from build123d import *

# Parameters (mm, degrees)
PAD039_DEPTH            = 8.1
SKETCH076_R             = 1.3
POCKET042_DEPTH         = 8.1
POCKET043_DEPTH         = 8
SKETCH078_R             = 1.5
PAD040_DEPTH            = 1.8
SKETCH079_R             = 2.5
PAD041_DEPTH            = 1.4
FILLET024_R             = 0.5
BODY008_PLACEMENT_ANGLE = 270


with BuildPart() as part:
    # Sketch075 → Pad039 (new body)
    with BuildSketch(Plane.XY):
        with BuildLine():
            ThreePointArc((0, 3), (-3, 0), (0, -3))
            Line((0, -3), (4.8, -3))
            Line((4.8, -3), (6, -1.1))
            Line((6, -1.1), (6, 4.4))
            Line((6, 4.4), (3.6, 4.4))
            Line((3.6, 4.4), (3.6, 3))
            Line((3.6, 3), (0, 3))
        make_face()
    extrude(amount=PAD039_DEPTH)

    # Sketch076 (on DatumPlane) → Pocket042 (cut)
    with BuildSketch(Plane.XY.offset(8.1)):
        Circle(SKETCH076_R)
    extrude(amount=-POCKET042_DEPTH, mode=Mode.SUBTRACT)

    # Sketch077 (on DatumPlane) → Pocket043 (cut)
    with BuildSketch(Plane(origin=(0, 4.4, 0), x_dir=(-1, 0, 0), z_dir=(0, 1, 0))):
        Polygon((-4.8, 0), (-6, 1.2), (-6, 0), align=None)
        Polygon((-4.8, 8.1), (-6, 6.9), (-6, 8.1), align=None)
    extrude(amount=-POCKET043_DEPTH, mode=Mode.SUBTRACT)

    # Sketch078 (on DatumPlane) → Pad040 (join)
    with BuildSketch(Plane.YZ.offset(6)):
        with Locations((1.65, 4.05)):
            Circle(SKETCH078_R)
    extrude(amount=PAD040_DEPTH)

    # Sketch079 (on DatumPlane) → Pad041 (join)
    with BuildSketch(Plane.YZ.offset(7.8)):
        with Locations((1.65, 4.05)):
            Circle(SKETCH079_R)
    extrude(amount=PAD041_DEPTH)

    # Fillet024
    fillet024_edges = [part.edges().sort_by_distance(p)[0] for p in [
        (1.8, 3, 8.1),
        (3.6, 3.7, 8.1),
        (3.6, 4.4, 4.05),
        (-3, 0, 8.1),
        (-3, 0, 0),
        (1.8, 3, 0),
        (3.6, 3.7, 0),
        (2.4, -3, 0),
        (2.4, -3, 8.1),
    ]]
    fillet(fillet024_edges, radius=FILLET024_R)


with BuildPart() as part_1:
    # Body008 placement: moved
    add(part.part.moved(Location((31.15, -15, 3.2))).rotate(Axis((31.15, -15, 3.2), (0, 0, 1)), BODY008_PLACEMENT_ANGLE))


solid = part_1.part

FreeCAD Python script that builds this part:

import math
import FreeCAD as App
import Part
import Sketcher

V = App.Vector
Q = App.Units.Quantity


def edges_at(feature, points):
    """Names of the edges that pass closest to the given points."""
    edges = feature.Shape.Edges
    near = lambda p: min(range(len(edges)), key=lambda i: edges[i].distToShape(Part.Vertex(*p))[0])
    return sorted({f"Edge{near(p) + 1}" for p in points})


def add_polygon(sketch, points):
    """Adds a closed chain of lines whose ends are joined by coincident constraints."""
    first, n = sketch.GeometryCount, len(points)
    for a, b in zip(points, points[1:] + points[:1]):
        sketch.addGeometry(Part.LineSegment(App.Vector(*a, 0), App.Vector(*b, 0)), False)
    for i in range(n):
        sketch.addConstraint(Sketcher.Constraint("Coincident", first + i, 2, first + (i + 1) % n, 1))

doc = App.newDocument("Part")
params = doc.addObject("Spreadsheet::Sheet", "Params")
for row, (alias, value) in enumerate([
    ("sketch1_radius", "3 mm"),
    ("sketch1_width", "4.8 mm"),
    ("sketch1_width2", "2.4 mm"),
    ("sketch1_width3", "3.6 mm"),
    ("sketch1_height", "5.5 mm"),
    ("pad1_length", "8.1 mm"),
    ("sketch2_diameter", "2.6 mm"),
    ("pocket1_length", "8.1 mm"),
    ("sketch3_width", "1.2 mm"),
    ("pocket2_length", "8 mm"),
    ("sketch4_diameter", "3 mm"),
    ("pad2_length", "1.8 mm"),
    ("sketch5_diameter", "5 mm"),
    ("pad3_length", "1.4 mm"),
    ("fillet_radius", "0.5 mm"),
], start=1):
    params.set(f"A{row}", alias)
    params.set(f"B{row}", "=" + value)
    params.setAlias(f"B{row}", alias)

body = doc.addObject("PartDesign::Body", "Body")

# Sketch on XY plane
sketch1 = body.newObject("Sketcher::SketchObject", "Sketch")
sketch1.AttachmentSupport = (doc.getObject("XY_Plane"), [""])
sketch1.MapMode = "FlatFace"
sketch1.addGeometry(Part.ArcOfCircle(Part.Circle(V(0, 0, 0), V(0, 0, 1), 3), math.radians(90), math.radians(270)), False)
sketch1.addGeometry(Part.LineSegment(V(0, -3, 0), V(4.8, -3, 0)), False)
sketch1.addGeometry(Part.LineSegment(V(4.8, -3, 0), V(6, -1.1, 0)), False)
sketch1.addGeometry(Part.LineSegment(V(6, -1.1, 0), V(6, 4.4, 0)), False)
sketch1.addGeometry(Part.LineSegment(V(6, 4.4, 0), V(3.6, 4.4, 0)), False)
sketch1.addGeometry(Part.LineSegment(V(3.6, 4.4, 0), V(3.6, 3, 0)), False)
sketch1.addGeometry(Part.LineSegment(V(3.6, 3, 0), V(0, 3, 0)), False)
sketch1.addConstraint(Sketcher.Constraint("Tangent", 0, 2, 1, 1))
sketch1.addConstraint(Sketcher.Constraint("Coincident", 1, 2, 2, 1))
sketch1.addConstraint(Sketcher.Constraint("Coincident", 2, 2, 3, 1))
sketch1.addConstraint(Sketcher.Constraint("Coincident", 3, 2, 4, 1))
sketch1.addConstraint(Sketcher.Constraint("Coincident", 4, 2, 5, 1))
sketch1.addConstraint(Sketcher.Constraint("Coincident", 5, 2, 6, 1))
sketch1.addConstraint(Sketcher.Constraint("Tangent", 6, 2, 0, 1))
sketch1.addConstraint(Sketcher.Constraint("Horizontal", 1))
sketch1.addConstraint(Sketcher.Constraint("Vertical", 3))
sketch1.addConstraint(Sketcher.Constraint("Horizontal", 4))
sketch1.addConstraint(Sketcher.Constraint("Vertical", 5))
sketch1.addConstraint(Sketcher.Constraint("Horizontal", 6))
sketch1.addConstraint(Sketcher.Constraint("Coincident", 0, 3, -1, 1))
sketch1.addConstraint(Sketcher.Constraint("Radius", 0, Q("3 mm")))
sketch1.addConstraint(Sketcher.Constraint("DistanceX", 1, 1, 1, 2, Q("4.8 mm")))
sketch1.addConstraint(Sketcher.Constraint("DistanceX", 4, 2, 4, 1, Q("2.4 mm")))
sketch1.addConstraint(Sketcher.Constraint("DistanceX", 6, 2, 6, 1, Q("3.6 mm")))
sketch1.addConstraint(Sketcher.Constraint("DistanceY", 3, 1, 3, 2, Q("5.5 mm")))
sketch1.addConstraint(Sketcher.Constraint("DistanceY", 5, 2, 5, 1, Q("1.4 mm")))
sketch1.setExpression("Constraints[13]", "Params.sketch1_radius")
sketch1.setExpression("Constraints[14]", "Params.sketch1_width")
sketch1.setExpression("Constraints[15]", "Params.sketch1_width2")
sketch1.setExpression("Constraints[16]", "Params.sketch1_width3")
sketch1.setExpression("Constraints[17]", "Params.sketch1_height")
pad1 = body.newObject("PartDesign::Pad", "Pad")
pad1.Profile = sketch1
pad1.setExpression("Length", "Params.pad1_length")

# Sketch on XY plane
sketch2 = body.newObject("Sketcher::SketchObject", "Sketch001")
sketch2.AttachmentSupport = (doc.getObject("XY_Plane"), [""])
sketch2.MapMode = "FlatFace"
sketch2.AttachmentOffset = App.Placement(V(0, 0, 8.1), App.Rotation())
sketch2.addGeometry(Part.Circle(V(0, 0, 0), V(0, 0, 1), 1.3), False)
sketch2.addConstraint(Sketcher.Constraint("Coincident", 0, 3, -1, 1))
sketch2.addConstraint(Sketcher.Constraint("Diameter", 0, Q("2.6 mm")))
sketch2.setExpression("Constraints[1]", "Params.sketch2_diameter")
pocket1 = body.newObject("PartDesign::Pocket", "Pocket")
pocket1.Profile = sketch2
pocket1.setExpression("Length", "Params.pocket1_length")

# Sketch on XZ plane
sketch3 = body.newObject("Sketcher::SketchObject", "Sketch002")
sketch3.AttachmentSupport = (doc.getObject("XZ_Plane"), [""])
sketch3.MapMode = "FlatFace"
sketch3.AttachmentOffset = App.Placement(V(0, 0, -4.4), App.Rotation())
add_polygon(sketch3, [(4.8, 0), (6, 1.2), (6, 0)])  # lines 0-2
add_polygon(sketch3, [(6, 6.9), (4.8, 8.1), (6, 8.1)])  # lines 3-5
sketch3.addConstraint(Sketcher.Constraint("Vertical", 1))
sketch3.addConstraint(Sketcher.Constraint("Horizontal", 2))
sketch3.addConstraint(Sketcher.Constraint("Horizontal", 4))
sketch3.addConstraint(Sketcher.Constraint("Vertical", 5))
sketch3.addConstraint(Sketcher.Constraint("PointOnObject", 1, 2, -1))
sketch3.addConstraint(Sketcher.Constraint("Perpendicular", 0, 3))
sketch3.addConstraint(Sketcher.Constraint("Vertical", 2, 2, 3, 2))
sketch3.addConstraint(Sketcher.Constraint("Vertical", 1, 2, 4, 2))
sketch3.addConstraint(Sketcher.Constraint("Equal", 4, 1))
sketch3.addConstraint(Sketcher.Constraint("DistanceX", 2, 2, 2, 1, Q("1.2 mm")))
sketch3.addConstraint(Sketcher.Constraint("DistanceX", -1, 1, 0, 2, Q("6 mm")))
sketch3.addConstraint(Sketcher.Constraint("DistanceY", -1, 1, 3, 2, Q("8.1 mm")))
sketch3.setExpression("Constraints[15]", "Params.sketch3_width")
pocket2 = body.newObject("PartDesign::Pocket", "Pocket001")
pocket2.Profile = sketch3
pocket2.setExpression("Length", "Params.pocket2_length")
pocket2.Reversed = True

# Sketch on YZ plane
sketch4 = body.newObject("Sketcher::SketchObject", "Sketch003")
sketch4.AttachmentSupport = (doc.getObject("YZ_Plane"), [""])
sketch4.MapMode = "FlatFace"
sketch4.AttachmentOffset = App.Placement(V(0, 0, 6), App.Rotation())
sketch4.addGeometry(Part.Circle(V(1.6, 4, 0), V(0, 0, 1), 1.5), False)
sketch4.addConstraint(Sketcher.Constraint("Diameter", 0, Q("3 mm")))
sketch4.addConstraint(Sketcher.Constraint("DistanceX", -1, 1, 0, 3, Q("1.65 mm")))
sketch4.addConstraint(Sketcher.Constraint("DistanceY", -1, 1, 0, 3, Q("4.05 mm")))
sketch4.setExpression("Constraints[0]", "Params.sketch4_diameter")
pad2 = body.newObject("PartDesign::Pad", "Pad001")
pad2.Profile = sketch4
pad2.setExpression("Length", "Params.pad2_length")

# Sketch on YZ plane
sketch5 = body.newObject("Sketcher::SketchObject", "Sketch004")
sketch5.AttachmentSupport = (doc.getObject("YZ_Plane"), [""])
sketch5.MapMode = "FlatFace"
sketch5.AttachmentOffset = App.Placement(V(0, 0, 7.8), App.Rotation())
sketch5.addGeometry(Part.Circle(V(1.6, 4, 0), V(0, 0, 1), 2.5), False)
sketch5.addConstraint(Sketcher.Constraint("Diameter", 0, Q("5 mm")))
sketch5.addConstraint(Sketcher.Constraint("DistanceX", -1, 1, 0, 3, Q("1.65 mm")))
sketch5.addConstraint(Sketcher.Constraint("DistanceY", -1, 1, 0, 3, Q("4.05 mm")))
sketch5.setExpression("Constraints[0]", "Params.sketch5_diameter")
pad3 = body.newObject("PartDesign::Pad", "Pad002")
pad3.Profile = sketch5
pad3.setExpression("Length", "Params.pad3_length")
doc.recompute()

fillet = body.newObject("PartDesign::Fillet", "Fillet")
fillet.Base = (pad3, edges_at(pad3, [
    (1.8, 3, 8.1),
    (3.6, 3.7, 8.1),
    (3.6, 4.4, 4.05),
    (-3, 0, 8.1),
    (-3, 0, 0),
    (1.8, 3, 0),
    (3.6, 3.7, 0),
    (2.4, -3, 0),
    (2.4, -3, 8.1),
]))
fillet.setExpression("Radius", "Params.fillet_radius")
body2 = doc.addObject("PartDesign::Body", "Body001")
doc.recompute()

body.Placement = App.Placement(V(31.15, -15, 3.2), App.Rotation(V(0, 0, 1), 270))
boolean = body2.newObject("PartDesign::Boolean", "Boolean")
boolean.Type = "Fuse"
boolean.addObjects([body])

doc.recompute()
